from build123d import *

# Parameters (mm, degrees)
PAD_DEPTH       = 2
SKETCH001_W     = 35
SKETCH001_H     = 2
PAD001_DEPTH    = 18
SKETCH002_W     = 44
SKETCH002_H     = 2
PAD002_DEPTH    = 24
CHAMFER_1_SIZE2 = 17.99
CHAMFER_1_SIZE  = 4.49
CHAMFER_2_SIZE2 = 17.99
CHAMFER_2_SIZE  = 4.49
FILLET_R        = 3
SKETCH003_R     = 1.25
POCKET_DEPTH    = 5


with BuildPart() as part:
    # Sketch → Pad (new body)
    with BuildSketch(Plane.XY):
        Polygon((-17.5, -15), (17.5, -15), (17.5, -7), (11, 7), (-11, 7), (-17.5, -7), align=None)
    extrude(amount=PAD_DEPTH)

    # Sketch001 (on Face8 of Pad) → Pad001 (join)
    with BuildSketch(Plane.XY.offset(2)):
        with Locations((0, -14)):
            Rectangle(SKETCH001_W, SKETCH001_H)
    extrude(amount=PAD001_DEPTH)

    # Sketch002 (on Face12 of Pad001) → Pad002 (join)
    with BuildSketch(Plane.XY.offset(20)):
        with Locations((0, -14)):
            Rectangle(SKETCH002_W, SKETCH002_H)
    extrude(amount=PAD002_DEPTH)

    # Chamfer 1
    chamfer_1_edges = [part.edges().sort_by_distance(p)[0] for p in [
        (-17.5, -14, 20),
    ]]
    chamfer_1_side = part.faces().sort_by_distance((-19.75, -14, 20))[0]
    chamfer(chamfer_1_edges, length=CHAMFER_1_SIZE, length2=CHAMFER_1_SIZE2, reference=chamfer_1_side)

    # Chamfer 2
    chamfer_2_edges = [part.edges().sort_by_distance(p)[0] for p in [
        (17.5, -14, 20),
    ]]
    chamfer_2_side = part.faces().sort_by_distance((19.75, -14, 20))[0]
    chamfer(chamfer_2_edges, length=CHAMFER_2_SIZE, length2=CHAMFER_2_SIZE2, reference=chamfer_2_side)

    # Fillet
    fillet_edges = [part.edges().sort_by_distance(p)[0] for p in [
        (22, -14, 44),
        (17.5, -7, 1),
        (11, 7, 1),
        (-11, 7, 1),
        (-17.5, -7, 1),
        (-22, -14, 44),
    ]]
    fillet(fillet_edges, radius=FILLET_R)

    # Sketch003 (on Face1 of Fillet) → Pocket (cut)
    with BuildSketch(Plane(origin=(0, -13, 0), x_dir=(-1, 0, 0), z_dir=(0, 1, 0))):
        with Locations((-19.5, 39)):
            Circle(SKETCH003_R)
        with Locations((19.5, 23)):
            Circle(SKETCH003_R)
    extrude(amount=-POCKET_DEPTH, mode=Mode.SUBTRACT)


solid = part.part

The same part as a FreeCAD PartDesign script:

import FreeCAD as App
import Part
import Sketcher


def edges_at(feature, points):
    """Names of the edges that pass closest to the given points."""
    edges = feature.Shape.Edges
    near = lambda p: min(range(len(edges)), key=lambda i: edges[i].distToShape(Part.Vertex(*p))[0])
    return sorted({f"Edge{near(p) + 1}" for p in points})


def add_polygon(sketch, points):
    """Adds a closed chain of lines whose ends are joined by coincident constraints."""
    first, n = sketch.GeometryCount, len(points)
    for a, b in zip(points, points[1:] + points[:1]):
        sketch.addGeometry(Part.LineSegment(App.Vector(*a, 0), App.Vector(*b, 0)), False)
    for i in range(n):
        sketch.addConstraint(Sketcher.Constraint("Coincident", first + i, 2, first + (i + 1) % n, 1))

doc = App.newDocument("Part")
params = doc.addObject("Spreadsheet::Sheet", "Params")
for row, (alias, value) in enumerate([
    ("sketch1_width", "35 mm"),
    ("sketch1_width2", "22 mm"),
    ("sketch1_height", "8 mm"),
    ("pad1_length", "2 mm"),
    ("sketch2_width", "35 mm"),
    ("sketch2_height", "2 mm"),
    ("pad2_length", "18 mm"),
    ("sketch3_width", "44 mm"),
    ("sketch3_height", "2 mm"),
    ("pad3_length", "24 mm"),
    ("chamfer_size", "4.49 mm"),
    ("chamfer_size2", "17.99 mm"),
    ("chamfer2_size", "4.49 mm"),
    ("chamfer2_size2", "17.99 mm"),
    ("fillet_radius", "3 mm"),
    ("sketch4_diameter", "2.5 mm"),
    ("pocket1_length", "5 mm"),
], start=1):
    params.set(f"A{row}", alias)
    params.set(f"B{row}", "=" + value)
    params.setAlias(f"B{row}", alias)

body = doc.addObject("PartDesign::Body", "Body")

sketch1 = body.newObject("Sketcher::SketchObject", "Sketch")
sketch1.AttachmentSupport = (doc.getObject("XY_Plane"), [""])
sketch1.MapMode = "FlatFace"
add_polygon(sketch1, [(-18, -15), (18, -15), (18, -7), (11, 7), (-11, 7), (-18, -7)])
sketch1.addConstraint(Sketcher.Constraint("Horizontal", 0))
sketch1.addConstraint(Sketcher.Constraint("Vertical", 1))
sketch1.addConstraint(Sketcher.Constraint("Horizontal", 3))
sketch1.addConstraint(Sketcher.Constraint("Vertical", 5))
sketch1.addConstraint(Sketcher.Constraint("Symmetric", 1, 2, 4, 2, -2))
sketch1.addConstraint(Sketcher.Constraint("Equal", 2, 4))
sketch1.addConstraint(Sketcher.Constraint("DistanceX", 0, 1, 0, 2, 35.0))
sketch1.addConstraint(Sketcher.Constraint("DistanceX", 3, 2, 3, 1, 22.0))
sketch1.addConstraint(Sketcher.Constraint("DistanceY", 1, 1, 1, 2, 8.0))
sketch1.addConstraint(Sketcher.Constraint("DistanceY", 0, 2, -1, 1, 15.0))
sketch1.addConstraint(Sketcher.Constraint("DistanceY", -1, 1, 2, 2, 7.0))
sketch1.setExpression("Constraints[12]", "Params.sketch1_width")
sketch1.setExpression("Constraints[13]", "Params.sketch1_width2")
sketch1.setExpression("Constraints[14]", "Params.sketch1_height")
pad1 = body.newObject("PartDesign::Pad", "Pad")
pad1.Profile = sketch1
pad1.setExpression("Length", "Params.pad1_length")

sketch2 = body.newObject("Sketcher::SketchObject", "Sketch001")
sketch2.AttachmentSupport = (doc.getObject("XY_Plane"), [""])
sketch2.MapMode = "FlatFace"
sketch2.AttachmentOffset = App.Placement(App.Vector(0, 0, 2), App.Rotation())
add_polygon(sketch2, [(-17.5, -13), (-17.5, -15), (17.5, -15), (17.5, -13)])
sketch2.addConstraint(Sketcher.Constraint("Vertical", 0))
sketch2.addConstraint(Sketcher.Constraint("Horizontal", 1))
sketch2.addConstraint(Sketcher.Constraint("Vertical", 2))
sketch2.addConstraint(Sketcher.Constraint("Horizontal", 3))
sketch2.addConstraint(Sketcher.Constraint("DistanceX", 1, 1, 1, 2, 35.0))
sketch2.addConstraint(Sketcher.Constraint("DistanceY", 0, 2, 0, 1, 2.0))
sketch2.addConstraint(Sketcher.Constraint("DistanceY", 0, 2, -1, 1, 15.0))
sketch2.addConstraint(Sketcher.Constraint("DistanceX", 0, 2, -1, 1, 17.5))
sketch2.setExpression("Constraints[8]", "Params.sketch2_width")
sketch2.setExpression("Constraints[9]", "Params.sketch2_height")
pad2 = body.newObject("PartDesign::Pad", "Pad001")
pad2.Profile = sketch2
pad2.setExpression("Length", "Params.pad2_length")

sketch3 = body.newObject("Sketcher::SketchObject", "Sketch002")
sketch3.AttachmentSupport = (doc.getObject("XY_Plane"), [""])
sketch3.MapMode = "FlatFace"
sketch3.AttachmentOffset = App.Placement(App.Vector(0, 0, 20), App.Rotation())
add_polygon(sketch3, [(-22, -13), (-22, -15), (22, -15), (22, -13)])
sketch3.addConstraint(Sketcher.Constraint("Vertical", 0))
sketch3.addConstraint(Sketcher.Constraint("Horizontal", 1))
sketch3.addConstraint(Sketcher.Constraint("Vertical", 2))
sketch3.addConstraint(Sketcher.Constraint("Horizontal", 3))
sketch3.addConstraint(Sketcher.Constraint("DistanceX", 1, 1, 1, 2, 44.0))
sketch3.addConstraint(Sketcher.Constraint("DistanceY", 0, 2, 0, 1, 2.0))
sketch3.addConstraint(Sketcher.Constraint("DistanceX", 0, 2, -1, 1, 22.0))
sketch3.addConstraint(Sketcher.Constraint("DistanceY", 0, 2, -1, 1, 15.0))
sketch3.setExpression("Constraints[8]", "Params.sketch3_width")
sketch3.setExpression("Constraints[9]", "Params.sketch3_height")
pad3 = body.newObject("PartDesign::Pad", "Pad002")
pad3.Profile = sketch3
pad3.setExpression("Length", "Params.pad3_length")
doc.recompute()

chamfer = body.newObject("PartDesign::Chamfer", "Chamfer")
chamfer.Base = (pad3, edges_at(pad3, [(-17.5, -14, 20)]))
chamfer.ChamferType = "Two distances"
chamfer.setExpression("Size", "Params.chamfer_size")
chamfer.setExpression("Size2", "Params.chamfer_size2")
chamfer.FlipDirection = True
doc.recompute()

chamfer2 = body.newObject("PartDesign::Chamfer", "Chamfer001")
chamfer2.Base = (chamfer, edges_at(chamfer, [(17.5, -14, 20)]))
chamfer2.ChamferType = "Two distances"
chamfer2.setExpression("Size", "Params.chamfer2_size")
chamfer2.setExpression("Size2", "Params.chamfer2_size2")
chamfer2.FlipDirection = True
doc.recompute()

fillet = body.newObject("PartDesign::Fillet", "Fillet")
fillet.Base = (chamfer2, edges_at(chamfer2, [
    (22, -14, 44),
    (17.5, -7, 1),
    (11, 7, 1),
    (-11, 7, 1),
    (-17.5, -7, 1),
    (-22, -14, 44),
]))
fillet.setExpression("Radius", "Params.fillet_radius")

sketch4 = body.newObject("Sketcher::SketchObject", "Sketch003")
sketch4.AttachmentSupport = (doc.getObject("XZ_Plane"), [""])
sketch4.MapMode = "FlatFace"
sketch4.AttachmentOffset = App.Placement(App.Vector(0, 0, 13), App.Rotation())
sketch4.addGeometry(Part.Circle(App.Vector(19.5, 39, 0), App.Vector(0, 0, 1), 1.2), False)
sketch4.addGeometry(Part.Circle(App.Vector(-19.5, 23, 0), App.Vector(0, 0, 1), 1.2), False)
sketch4.addConstraint(Sketcher.Constraint("Equal", 0, 1))
sketch4.addConstraint(Sketcher.Constraint("Diameter", 0, 2.5))
sketch4.addConstraint(Sketcher.Constraint("DistanceY", -1, 1, 0, 3, 39.0))
sketch4.addConstraint(Sketcher.Constraint("DistanceY", -1, 1, 1, 3, 23.0))
sketch4.addConstraint(Sketcher.Constraint("DistanceX", 1, 3, 0, 3, 39.0))
sketch4.addConstraint(Sketcher.Constraint("DistanceX", -1, 1, 0, 3, 19.5))
sketch4.setExpression("Constraints[1]", "Params.sketch4_diameter")
pocket1 = body.newObject("PartDesign::Pocket", "Pocket")
pocket1.Profile = sketch4
pocket1.setExpression("Length", "Params.pocket1_length")
pocket1.Reversed = True

doc.recompute()
